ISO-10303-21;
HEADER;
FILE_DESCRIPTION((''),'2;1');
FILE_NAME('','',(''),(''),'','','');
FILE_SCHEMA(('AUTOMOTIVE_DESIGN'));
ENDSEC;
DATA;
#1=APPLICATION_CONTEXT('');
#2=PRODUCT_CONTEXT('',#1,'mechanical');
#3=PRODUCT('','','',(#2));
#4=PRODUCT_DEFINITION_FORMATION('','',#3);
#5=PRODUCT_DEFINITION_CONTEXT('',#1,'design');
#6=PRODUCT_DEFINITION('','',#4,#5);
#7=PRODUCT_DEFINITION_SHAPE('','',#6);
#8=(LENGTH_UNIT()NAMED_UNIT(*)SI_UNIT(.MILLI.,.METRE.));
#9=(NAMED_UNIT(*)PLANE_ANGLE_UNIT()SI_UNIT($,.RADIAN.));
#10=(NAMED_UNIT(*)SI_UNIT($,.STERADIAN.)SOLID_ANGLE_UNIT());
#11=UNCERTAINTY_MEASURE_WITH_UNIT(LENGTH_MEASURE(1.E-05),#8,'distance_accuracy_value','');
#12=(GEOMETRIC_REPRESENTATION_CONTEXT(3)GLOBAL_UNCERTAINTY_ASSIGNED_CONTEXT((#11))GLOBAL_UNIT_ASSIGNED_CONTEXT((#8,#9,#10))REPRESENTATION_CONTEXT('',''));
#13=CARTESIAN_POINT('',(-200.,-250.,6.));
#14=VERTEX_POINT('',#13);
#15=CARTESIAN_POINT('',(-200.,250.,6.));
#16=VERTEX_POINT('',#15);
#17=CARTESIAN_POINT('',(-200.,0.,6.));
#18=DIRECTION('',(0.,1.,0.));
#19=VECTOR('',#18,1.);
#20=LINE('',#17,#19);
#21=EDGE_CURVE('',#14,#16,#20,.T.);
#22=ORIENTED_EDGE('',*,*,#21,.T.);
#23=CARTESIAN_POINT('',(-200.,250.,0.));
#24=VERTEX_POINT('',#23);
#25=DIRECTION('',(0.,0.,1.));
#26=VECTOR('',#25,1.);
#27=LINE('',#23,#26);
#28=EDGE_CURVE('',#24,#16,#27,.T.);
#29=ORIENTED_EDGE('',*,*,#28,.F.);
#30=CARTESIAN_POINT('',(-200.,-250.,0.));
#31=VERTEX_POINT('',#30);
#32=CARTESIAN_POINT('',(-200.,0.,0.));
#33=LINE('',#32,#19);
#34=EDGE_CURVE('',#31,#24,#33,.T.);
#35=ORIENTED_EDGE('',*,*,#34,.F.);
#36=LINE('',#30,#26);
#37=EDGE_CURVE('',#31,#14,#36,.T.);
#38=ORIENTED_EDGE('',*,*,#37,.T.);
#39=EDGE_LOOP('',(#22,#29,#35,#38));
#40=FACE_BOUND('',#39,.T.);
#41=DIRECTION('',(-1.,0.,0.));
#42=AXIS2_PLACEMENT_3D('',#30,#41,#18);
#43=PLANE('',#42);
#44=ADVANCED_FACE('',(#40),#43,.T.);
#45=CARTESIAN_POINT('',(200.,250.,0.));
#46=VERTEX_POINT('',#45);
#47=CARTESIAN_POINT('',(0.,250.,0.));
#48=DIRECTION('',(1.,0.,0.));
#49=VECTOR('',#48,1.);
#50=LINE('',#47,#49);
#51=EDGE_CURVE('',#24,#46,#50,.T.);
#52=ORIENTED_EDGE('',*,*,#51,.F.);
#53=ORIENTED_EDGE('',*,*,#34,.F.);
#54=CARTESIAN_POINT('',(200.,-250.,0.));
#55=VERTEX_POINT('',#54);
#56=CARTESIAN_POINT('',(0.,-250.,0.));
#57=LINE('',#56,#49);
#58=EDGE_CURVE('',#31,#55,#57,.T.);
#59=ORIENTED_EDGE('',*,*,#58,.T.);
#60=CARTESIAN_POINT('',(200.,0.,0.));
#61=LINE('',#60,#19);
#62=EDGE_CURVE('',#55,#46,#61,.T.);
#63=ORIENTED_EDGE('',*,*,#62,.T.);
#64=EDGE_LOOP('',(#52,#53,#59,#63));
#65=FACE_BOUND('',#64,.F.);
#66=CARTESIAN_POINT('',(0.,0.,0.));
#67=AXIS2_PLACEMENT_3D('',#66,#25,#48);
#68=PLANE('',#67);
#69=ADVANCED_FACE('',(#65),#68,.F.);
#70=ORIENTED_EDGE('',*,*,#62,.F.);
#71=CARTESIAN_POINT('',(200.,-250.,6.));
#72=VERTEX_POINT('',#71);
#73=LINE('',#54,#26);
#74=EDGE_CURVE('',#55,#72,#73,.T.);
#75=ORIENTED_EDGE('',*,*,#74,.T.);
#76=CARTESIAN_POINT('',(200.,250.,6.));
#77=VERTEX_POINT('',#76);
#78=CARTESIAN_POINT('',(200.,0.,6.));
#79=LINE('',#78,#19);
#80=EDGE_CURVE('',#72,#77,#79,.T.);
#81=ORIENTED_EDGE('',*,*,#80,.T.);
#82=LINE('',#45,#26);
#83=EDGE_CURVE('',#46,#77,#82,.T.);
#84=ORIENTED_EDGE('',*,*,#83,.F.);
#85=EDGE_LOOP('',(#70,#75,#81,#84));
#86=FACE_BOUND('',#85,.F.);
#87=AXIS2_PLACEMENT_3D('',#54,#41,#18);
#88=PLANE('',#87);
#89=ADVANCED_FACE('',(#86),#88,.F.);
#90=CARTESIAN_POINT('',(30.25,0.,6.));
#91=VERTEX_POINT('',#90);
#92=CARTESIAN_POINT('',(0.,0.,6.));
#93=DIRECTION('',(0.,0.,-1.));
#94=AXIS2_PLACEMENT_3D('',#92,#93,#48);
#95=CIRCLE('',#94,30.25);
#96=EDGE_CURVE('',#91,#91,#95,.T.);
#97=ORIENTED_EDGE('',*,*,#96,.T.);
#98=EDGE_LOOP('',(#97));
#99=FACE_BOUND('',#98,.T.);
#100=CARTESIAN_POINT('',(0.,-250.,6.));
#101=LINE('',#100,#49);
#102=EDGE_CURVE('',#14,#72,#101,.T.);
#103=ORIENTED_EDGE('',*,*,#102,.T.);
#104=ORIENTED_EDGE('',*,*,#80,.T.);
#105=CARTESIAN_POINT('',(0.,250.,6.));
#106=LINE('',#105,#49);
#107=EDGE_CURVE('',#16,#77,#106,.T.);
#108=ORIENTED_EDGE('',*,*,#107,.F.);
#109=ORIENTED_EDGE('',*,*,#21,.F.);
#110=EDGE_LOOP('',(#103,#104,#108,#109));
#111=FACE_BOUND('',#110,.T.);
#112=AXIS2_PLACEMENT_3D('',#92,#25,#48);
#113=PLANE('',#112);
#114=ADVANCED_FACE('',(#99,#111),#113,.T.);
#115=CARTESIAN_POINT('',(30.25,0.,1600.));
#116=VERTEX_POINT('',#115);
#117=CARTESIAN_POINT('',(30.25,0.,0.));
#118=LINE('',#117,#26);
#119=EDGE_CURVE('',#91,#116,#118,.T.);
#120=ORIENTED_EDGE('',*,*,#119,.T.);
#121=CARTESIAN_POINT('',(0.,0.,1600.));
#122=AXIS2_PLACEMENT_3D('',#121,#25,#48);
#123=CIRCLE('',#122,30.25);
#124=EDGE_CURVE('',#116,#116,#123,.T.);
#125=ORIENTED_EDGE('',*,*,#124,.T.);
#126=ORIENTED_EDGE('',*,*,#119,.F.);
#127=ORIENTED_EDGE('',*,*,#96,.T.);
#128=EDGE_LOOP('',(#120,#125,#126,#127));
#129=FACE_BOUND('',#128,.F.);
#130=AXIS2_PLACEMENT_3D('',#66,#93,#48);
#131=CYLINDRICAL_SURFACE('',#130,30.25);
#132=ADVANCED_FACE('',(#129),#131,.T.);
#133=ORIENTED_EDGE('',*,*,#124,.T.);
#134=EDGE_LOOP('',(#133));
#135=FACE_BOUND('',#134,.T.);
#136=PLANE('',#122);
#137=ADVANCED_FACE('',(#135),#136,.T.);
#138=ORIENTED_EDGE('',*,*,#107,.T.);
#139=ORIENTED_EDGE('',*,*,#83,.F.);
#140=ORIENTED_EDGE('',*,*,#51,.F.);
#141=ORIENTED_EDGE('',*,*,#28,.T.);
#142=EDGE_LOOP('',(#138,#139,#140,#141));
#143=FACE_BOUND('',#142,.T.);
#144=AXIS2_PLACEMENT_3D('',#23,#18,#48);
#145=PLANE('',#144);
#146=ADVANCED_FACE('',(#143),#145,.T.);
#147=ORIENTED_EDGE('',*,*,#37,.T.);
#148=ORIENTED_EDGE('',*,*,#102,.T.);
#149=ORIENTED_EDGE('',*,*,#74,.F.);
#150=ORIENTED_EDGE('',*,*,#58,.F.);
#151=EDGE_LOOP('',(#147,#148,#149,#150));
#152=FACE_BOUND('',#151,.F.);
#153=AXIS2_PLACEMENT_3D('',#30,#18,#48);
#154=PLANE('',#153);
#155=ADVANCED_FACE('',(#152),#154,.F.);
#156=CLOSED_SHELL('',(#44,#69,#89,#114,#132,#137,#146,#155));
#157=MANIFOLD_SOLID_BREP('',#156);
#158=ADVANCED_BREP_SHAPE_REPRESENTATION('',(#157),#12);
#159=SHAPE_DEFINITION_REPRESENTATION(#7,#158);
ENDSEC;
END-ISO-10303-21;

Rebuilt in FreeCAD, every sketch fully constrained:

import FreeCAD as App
import Part
import Sketcher
from FreeCAD import Vector


def add_polygon(sketch, points):
    """Adds a closed chain of lines whose ends are joined by coincident constraints."""
    first, n = sketch.GeometryCount, len(points)
    for a, b in zip(points, points[1:] + points[:1]):
        sketch.addGeometry(Part.LineSegment(App.Vector(*a, 0), App.Vector(*b, 0)), False)
    for i in range(n):
        sketch.addConstraint(Sketcher.Constraint("Coincident", first + i, 2, first + (i + 1) % n, 1))

doc = App.newDocument("Part")
body = doc.addObject("PartDesign::Body", "Body")

# Sketch on XY plane
sketch1 = body.newObject("Sketcher::SketchObject", "Sketch")
sketch1.AttachmentSupport = (doc.getObject("XY_Plane"), [""])
sketch1.MapMode = "FlatFace"
add_polygon(sketch1, [(-200, 250), (-200, -250), (200, -250), (200, 250)])  # lines 0-3
sketch1.addConstraint([
    Sketcher.Constraint("Vertical", 0),
    Sketcher.Constraint("Horizontal", 1),
    Sketcher.Constraint("Vertical", 2),
    Sketcher.Constraint("Horizontal", 3),
    Sketcher.Constraint("Symmetric", 0, 2, 2, 2, -1, 1),
    Sketcher.Constraint("DistanceX", 1, 1, 1, 2, 400.0),
    Sketcher.Constraint("DistanceY", 0, 2, 0, 1, 500.0),
])
pad1 = body.newObject("PartDesign::Pad", "Pad")
pad1.Profile = sketch1
pad1.Length = 6

# Sketch on XY plane
sketch2 = body.newObject("Sketcher::SketchObject", "Sketch001")
sketch2.AttachmentSupport = (doc.getObject("XY_Plane"), [""])
sketch2.MapMode = "FlatFace"
sketch2.addGeometry(Part.Circle(Vector(0, 0, 0), Vector(0, 0, 1), 30), False)
sketch2.addConstraint([
    Sketcher.Constraint("Coincident", 0, 3, -1, 1),
    Sketcher.Constraint("Diameter", 0, 60.5),
])
pad2 = body.newObject("PartDesign::Pad", "Pad001")
pad2.Profile = sketch2
pad2.Length = 1600

doc.recompute()
